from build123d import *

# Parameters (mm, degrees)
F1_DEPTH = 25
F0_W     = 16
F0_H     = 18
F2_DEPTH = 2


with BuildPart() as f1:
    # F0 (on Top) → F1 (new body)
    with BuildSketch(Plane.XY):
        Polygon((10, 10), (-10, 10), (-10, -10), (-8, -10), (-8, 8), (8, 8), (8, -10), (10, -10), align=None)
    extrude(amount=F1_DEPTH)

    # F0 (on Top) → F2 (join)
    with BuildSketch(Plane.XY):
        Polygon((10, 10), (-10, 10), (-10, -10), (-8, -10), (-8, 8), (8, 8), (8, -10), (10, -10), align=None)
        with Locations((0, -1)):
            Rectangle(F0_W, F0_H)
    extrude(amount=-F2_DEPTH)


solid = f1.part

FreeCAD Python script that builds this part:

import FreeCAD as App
import Part
import Sketcher
from FreeCAD import Vector
Q = App.Units.Quantity

doc = App.newDocument("Part")
body = doc.addObject("PartDesign::Body", "Body")

sketch1 = doc.addObject("Sketcher::SketchObject", "Sketch")
body.addObject(sketch1)
sketch1.AttachmentSupport = (doc.XY_Plane, [""])
sketch1.MapMode = "FlatFace"
sketch1.addGeometry(Part.LineSegment(Vector(10, 10, 0), Vector(-10, 10, 0)), False)
sketch1.addGeometry(Part.LineSegment(Vector(-10, 10, 0), Vector(-10, -10, 0)), False)
sketch1.addGeometry(Part.LineSegment(Vector(-10, -10, 0), Vector(-8, -10, 0)), False)
sketch1.addGeometry(Part.LineSegment(Vector(-8, -10, 0), Vector(-8, 8, 0)), False)
sketch1.addGeometry(Part.LineSegment(Vector(-8, 8, 0), Vector(8, 8, 0)), False)
sketch1.addGeometry(Part.LineSegment(Vector(8, 8, 0), Vector(8, -10, 0)), False)
sketch1.addGeometry(Part.LineSegment(Vector(8, -10, 0), Vector(10, -10, 0)), False)
sketch1.addGeometry(Part.LineSegment(Vector(10, -10, 0), Vector(10, 10, 0)), False)
sketch1.addConstraint(Sketcher.Constraint("Coincident", 0, 2, 1, 1))
sketch1.addConstraint(Sketcher.Constraint("Coincident", 1, 2, 2, 1))
sketch1.addConstraint(Sketcher.Constraint("Coincident", 2, 2, 3, 1))
sketch1.addConstraint(Sketcher.Constraint("Coincident", 3, 2, 4, 1))
sketch1.addConstraint(Sketcher.Constraint("Coincident", 4, 2, 5, 1))
sketch1.addConstraint(Sketcher.Constraint("Coincident", 5, 2, 6, 1))
sketch1.addConstraint(Sketcher.Constraint("Coincident", 6, 2, 7, 1))
sketch1.addConstraint(Sketcher.Constraint("Coincident", 7, 2, 0, 1))
sketch1.addConstraint(Sketcher.Constraint("Horizontal", 0))
sketch1.addConstraint(Sketcher.Constraint("Vertical", 1))
sketch1.addConstraint(Sketcher.Constraint("Horizontal", 2))
sketch1.addConstraint(Sketcher.Constraint("Vertical", 3))
sketch1.addConstraint(Sketcher.Constraint("Horizontal", 4))
sketch1.addConstraint(Sketcher.Constraint("Vertical", 5))
sketch1.addConstraint(Sketcher.Constraint("Horizontal", 6))
sketch1.addConstraint(Sketcher.Constraint("Vertical", 7))
sketch1.addConstraint(Sketcher.Constraint("Symmetric", 0, 2, 6, 2, -1, 1))
sketch1.addConstraint(Sketcher.Constraint("Symmetric", 2, 2, 5, 2, -2))
sketch1.addConstraint(Sketcher.Constraint("Equal", 0, 1))
sketch1.addConstraint(Sketcher.Constraint("DistanceX", 0, 2, 0, 1, Q("20 mm")))
sketch1.addConstraint(Sketcher.Constraint("DistanceX", 2, 1, 2, 2, Q("2 mm")))
sketch1.addConstraint(Sketcher.Constraint("DistanceY", 3, 1, 3, 2, Q("18 mm")))
pad1 = doc.addObject("PartDesign::Pad", "Pad")
body.addObject(pad1)
pad1.Profile = sketch1
pad1.Length = 25

sketch2 = doc.addObject("Sketcher::SketchObject", "Sketch001")
body.addObject(sketch2)
sketch2.AttachmentSupport = (doc.XY_Plane, [""])
sketch2.MapMode = "FlatFace"
sketch2.addGeometry(Part.LineSegment(Vector(10, 10, 0), Vector(-10, 10, 0)), False)
sketch2.addGeometry(Part.LineSegment(Vector(-10, 10, 0), Vector(-10, -10, 0)), False)
sketch2.addGeometry(Part.LineSegment(Vector(-10, -10, 0), Vector(10, -10, 0)), False)
sketch2.addGeometry(Part.LineSegment(Vector(10, -10, 0), Vector(10, 10, 0)), False)
sketch2.addConstraint(Sketcher.Constraint("Coincident", 0, 2, 1, 1))
sketch2.addConstraint(Sketcher.Constraint("Coincident", 1, 2, 2, 1))
sketch2.addConstraint(Sketcher.Constraint("Coincident", 2, 2, 3, 1))
sketch2.addConstraint(Sketcher.Constraint("Coincident", 3, 2, 0, 1))
sketch2.addConstraint(Sketcher.Constraint("Horizontal", 0))
sketch2.addConstraint(Sketcher.Constraint("Vertical", 1))
sketch2.addConstraint(Sketcher.Constraint("Horizontal", 2))
sketch2.addConstraint(Sketcher.Constraint("Vertical", 3))
sketch2.addConstraint(Sketcher.Constraint("Symmetric", 0, 2, 2, 2, -1, 1))
sketch2.addConstraint(Sketcher.Constraint("Equal", 2, 1))
sketch2.addConstraint(Sketcher.Constraint("DistanceX", 0, 2, 0, 1, Q("20 mm")))
pad2 = doc.addObject("PartDesign::Pad", "Pad001")
body.addObject(pad2)
pad2.Profile = sketch2
pad2.Length = 2
pad2.Reversed = True

doc.recompute()
